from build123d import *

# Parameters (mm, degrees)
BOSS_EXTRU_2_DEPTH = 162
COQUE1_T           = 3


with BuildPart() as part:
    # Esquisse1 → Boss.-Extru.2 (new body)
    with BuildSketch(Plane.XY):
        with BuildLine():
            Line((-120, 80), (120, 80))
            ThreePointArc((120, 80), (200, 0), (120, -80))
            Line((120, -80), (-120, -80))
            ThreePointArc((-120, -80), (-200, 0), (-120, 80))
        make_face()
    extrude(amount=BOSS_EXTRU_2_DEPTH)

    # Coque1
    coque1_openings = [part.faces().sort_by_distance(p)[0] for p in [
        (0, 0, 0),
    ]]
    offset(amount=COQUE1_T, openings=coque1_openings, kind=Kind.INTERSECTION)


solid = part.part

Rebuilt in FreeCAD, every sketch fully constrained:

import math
import FreeCAD as App
import Part
import Sketcher


def faces_at(feature, points):
    """Names of the faces that lie closest to the given points."""
    faces = feature.Shape.Faces
    near = lambda p: min(range(len(faces)), key=lambda i: faces[i].distToShape(Part.Vertex(*p))[0])
    return sorted({f"Face{near(p) + 1}" for p in points})

doc = App.newDocument("Part")
body = doc.addObject("PartDesign::Body", "Body")

sketch1 = body.newObject("Sketcher::SketchObject", "Sketch")
sketch1.AttachmentSupport = (doc.getObject("XY_Plane"), [""])
sketch1.MapMode = "FlatFace"
sketch1.addGeometry([
    Part.LineSegment(App.Vector(120, 80, 0), App.Vector(-120, 80, 0)),
    Part.ArcOfCircle(Part.Circle(App.Vector(-120, 0, 0), App.Vector(0, 0, 1), 80), math.radians(90), math.radians(270)),
    Part.LineSegment(App.Vector(-120, -80, 0), App.Vector(120, -80, 0)),
    Part.ArcOfCircle(Part.Circle(App.Vector(120, 0, 0), App.Vector(0, 0, 1), 80), math.radians(-90), math.radians(90)),
], False)
sketch1.addConstraint([
    Sketcher.Constraint("Tangent", 0, 2, 1, 1),
    Sketcher.Constraint("Tangent", 1, 2, 2, 1),
    Sketcher.Constraint("Tangent", 2, 2, 3, 1),
    Sketcher.Constraint("Tangent", 3, 2, 0, 1),
    Sketcher.Constraint("Horizontal", 0),
    Sketcher.Constraint("Horizontal", 2),
    Sketcher.Constraint("Symmetric", 1, 3, 3, 3, -1, 1),
    Sketcher.Constraint("Radius", 1, 80.0),
    Sketcher.Constraint("DistanceX", 0, 2, 0, 1, 240.0),
])
pad1 = body.newObject("PartDesign::Pad", "Pad")
pad1.Profile = sketch1
pad1.Length = 162
doc.recompute()

thickness = body.newObject("PartDesign::Thickness", "Thickness")
thickness.Base = (pad1, faces_at(pad1, [(0, 0, 0)]))
thickness.Value = 3
thickness.Reversed = False
thickness.Join = "Intersection"

doc.recompute()
